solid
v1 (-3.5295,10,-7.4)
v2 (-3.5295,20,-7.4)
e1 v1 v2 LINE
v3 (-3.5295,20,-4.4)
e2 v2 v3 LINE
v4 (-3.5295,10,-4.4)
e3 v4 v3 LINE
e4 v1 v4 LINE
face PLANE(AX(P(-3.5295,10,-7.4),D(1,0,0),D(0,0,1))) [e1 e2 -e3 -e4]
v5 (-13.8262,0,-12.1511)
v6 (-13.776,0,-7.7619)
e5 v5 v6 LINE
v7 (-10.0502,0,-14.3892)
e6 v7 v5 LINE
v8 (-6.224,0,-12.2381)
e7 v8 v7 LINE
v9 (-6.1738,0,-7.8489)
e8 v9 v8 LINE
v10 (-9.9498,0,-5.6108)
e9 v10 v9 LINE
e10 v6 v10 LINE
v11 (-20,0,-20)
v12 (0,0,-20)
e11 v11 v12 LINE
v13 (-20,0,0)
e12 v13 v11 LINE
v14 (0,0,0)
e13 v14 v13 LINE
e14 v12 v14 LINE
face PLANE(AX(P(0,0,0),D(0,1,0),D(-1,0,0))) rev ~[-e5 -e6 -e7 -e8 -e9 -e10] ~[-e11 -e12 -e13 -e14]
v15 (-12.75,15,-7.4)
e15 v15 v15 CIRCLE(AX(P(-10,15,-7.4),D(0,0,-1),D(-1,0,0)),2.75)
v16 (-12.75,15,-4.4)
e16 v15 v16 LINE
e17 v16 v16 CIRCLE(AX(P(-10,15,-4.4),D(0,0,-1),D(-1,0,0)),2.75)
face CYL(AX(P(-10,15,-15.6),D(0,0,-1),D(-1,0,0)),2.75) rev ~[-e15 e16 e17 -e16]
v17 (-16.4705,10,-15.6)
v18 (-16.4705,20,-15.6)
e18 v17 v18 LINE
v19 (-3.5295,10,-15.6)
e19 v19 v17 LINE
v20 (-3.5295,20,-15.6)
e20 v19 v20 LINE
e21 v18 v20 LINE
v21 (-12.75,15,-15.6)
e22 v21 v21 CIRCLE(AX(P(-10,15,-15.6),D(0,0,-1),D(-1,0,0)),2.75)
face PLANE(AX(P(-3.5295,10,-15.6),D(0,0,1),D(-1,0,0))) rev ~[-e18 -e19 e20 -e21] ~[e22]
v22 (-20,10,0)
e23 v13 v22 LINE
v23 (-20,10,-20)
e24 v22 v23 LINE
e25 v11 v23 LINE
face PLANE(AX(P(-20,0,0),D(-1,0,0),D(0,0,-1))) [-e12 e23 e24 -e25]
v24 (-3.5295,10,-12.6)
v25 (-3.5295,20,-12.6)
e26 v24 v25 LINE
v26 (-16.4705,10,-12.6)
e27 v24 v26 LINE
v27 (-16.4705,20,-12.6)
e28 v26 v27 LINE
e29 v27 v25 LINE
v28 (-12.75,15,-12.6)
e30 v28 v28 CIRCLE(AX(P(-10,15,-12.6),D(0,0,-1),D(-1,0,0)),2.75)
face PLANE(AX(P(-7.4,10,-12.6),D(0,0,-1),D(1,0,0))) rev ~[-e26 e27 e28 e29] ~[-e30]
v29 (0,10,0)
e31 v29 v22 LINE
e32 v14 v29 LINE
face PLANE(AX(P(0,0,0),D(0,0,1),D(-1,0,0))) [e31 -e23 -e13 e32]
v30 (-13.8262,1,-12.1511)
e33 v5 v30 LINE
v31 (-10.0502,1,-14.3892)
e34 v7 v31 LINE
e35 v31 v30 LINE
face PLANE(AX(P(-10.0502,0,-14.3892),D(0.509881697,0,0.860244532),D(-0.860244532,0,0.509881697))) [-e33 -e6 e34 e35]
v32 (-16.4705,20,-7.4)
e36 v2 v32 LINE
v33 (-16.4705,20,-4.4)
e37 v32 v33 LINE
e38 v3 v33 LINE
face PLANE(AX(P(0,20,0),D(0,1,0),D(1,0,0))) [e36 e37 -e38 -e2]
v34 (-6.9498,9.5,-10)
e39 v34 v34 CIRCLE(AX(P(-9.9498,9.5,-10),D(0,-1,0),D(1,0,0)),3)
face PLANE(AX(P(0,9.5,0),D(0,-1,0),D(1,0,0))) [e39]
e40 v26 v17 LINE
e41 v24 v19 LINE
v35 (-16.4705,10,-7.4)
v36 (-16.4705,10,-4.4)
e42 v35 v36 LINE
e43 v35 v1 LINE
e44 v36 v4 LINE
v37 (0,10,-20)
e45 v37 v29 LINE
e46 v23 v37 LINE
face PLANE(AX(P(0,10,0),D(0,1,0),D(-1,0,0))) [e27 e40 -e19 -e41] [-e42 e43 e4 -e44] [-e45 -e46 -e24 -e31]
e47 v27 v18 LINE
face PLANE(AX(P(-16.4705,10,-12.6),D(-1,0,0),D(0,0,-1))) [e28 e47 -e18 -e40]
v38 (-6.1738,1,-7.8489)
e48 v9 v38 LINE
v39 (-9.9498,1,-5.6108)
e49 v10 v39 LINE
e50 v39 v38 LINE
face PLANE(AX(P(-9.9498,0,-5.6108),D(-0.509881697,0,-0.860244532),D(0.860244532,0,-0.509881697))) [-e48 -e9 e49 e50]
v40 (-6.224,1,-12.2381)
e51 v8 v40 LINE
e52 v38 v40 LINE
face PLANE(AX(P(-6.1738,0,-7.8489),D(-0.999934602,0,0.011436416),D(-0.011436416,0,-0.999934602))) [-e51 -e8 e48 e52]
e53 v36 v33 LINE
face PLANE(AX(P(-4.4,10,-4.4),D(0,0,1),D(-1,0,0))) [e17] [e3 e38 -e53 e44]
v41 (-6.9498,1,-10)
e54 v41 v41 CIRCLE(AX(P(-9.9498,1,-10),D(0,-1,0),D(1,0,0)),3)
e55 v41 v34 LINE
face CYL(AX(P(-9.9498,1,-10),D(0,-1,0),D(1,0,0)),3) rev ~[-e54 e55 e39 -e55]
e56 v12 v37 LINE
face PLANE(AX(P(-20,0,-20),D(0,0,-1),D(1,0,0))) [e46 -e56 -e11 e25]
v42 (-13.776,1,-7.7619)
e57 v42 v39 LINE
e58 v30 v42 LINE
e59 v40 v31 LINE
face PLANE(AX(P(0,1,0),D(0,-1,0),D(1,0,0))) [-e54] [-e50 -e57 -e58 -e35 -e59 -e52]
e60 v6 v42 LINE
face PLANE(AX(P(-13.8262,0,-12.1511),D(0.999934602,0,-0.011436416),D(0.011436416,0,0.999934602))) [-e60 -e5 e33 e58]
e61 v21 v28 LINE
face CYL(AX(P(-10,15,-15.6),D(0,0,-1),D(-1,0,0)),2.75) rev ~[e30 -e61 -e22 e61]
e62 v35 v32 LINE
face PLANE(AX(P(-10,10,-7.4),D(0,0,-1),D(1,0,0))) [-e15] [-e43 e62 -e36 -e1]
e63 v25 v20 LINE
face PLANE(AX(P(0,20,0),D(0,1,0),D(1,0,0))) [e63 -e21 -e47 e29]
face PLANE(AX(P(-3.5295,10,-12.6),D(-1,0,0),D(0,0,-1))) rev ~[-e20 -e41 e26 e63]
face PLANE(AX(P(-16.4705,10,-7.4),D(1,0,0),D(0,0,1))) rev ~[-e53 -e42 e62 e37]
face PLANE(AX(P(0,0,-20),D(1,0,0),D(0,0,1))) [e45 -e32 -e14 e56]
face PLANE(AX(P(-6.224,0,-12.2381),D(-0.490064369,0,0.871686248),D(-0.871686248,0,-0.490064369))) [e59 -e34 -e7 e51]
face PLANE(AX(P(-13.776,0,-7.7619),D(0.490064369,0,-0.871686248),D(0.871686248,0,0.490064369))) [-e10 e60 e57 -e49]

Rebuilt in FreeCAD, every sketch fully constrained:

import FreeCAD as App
import Part
import Sketcher
Q = App.Units.Quantity


def add_polygon(sketch, points):
    """Adds a closed chain of lines whose ends are joined by coincident constraints."""
    first, n = sketch.GeometryCount, len(points)
    for a, b in zip(points, points[1:] + points[:1]):
        sketch.addGeometry(Part.LineSegment(App.Vector(*a, 0), App.Vector(*b, 0)), False)
    for i in range(n):
        sketch.addConstraint(Sketcher.Constraint("Coincident", first + i, 2, first + (i + 1) % n, 1))

doc = App.newDocument("Part")
params = doc.addObject("Spreadsheet::Sheet", "Params")
for row, (alias, value) in enumerate([
    ("sketch1_width", "20 mm"),
    ("pad1_length", "10 mm"),
    ("pocket1_length", "1 mm"),
    ("sketch3_diameter", "6 mm"),
    ("pocket2_length", "8.5 mm"),
    ("sketch4_height", "3 mm"),
    ("pad2_length", "10 mm"),
    ("sketch5_diameter", "5.5 mm"),
    ("pocket3_length", "66.5 mm"),
], start=1):
    params.set(f"A{row}", alias)
    params.set(f"B{row}", "=" + value)
    params.setAlias(f"B{row}", alias)

body = doc.addObject("PartDesign::Body", "Body")

# Sketch on XZ plane
sketch1 = body.newObject("Sketcher::SketchObject", "Sketch")
sketch1.AttachmentSupport = (doc.getObject("XZ_Plane"), [""])
sketch1.MapMode = "FlatFace"
add_polygon(sketch1, [(-20, 0), (0, 0), (0, -20), (-20, -20)])  # lines 0-3
sketch1.addConstraint([
    Sketcher.Constraint("Horizontal", 0),
    Sketcher.Constraint("Vertical", 1),
    Sketcher.Constraint("Horizontal", 2),
    Sketcher.Constraint("Vertical", 3),
    Sketcher.Constraint("Coincident", 0, 2, -1, 1),
    Sketcher.Constraint("Equal", 2, 1),
    Sketcher.Constraint("DistanceX", 0, 1, 0, 2, Q("20 mm")),
])
sketch1.setExpression("Constraints[10]", "Params.sketch1_width")
pad1 = body.newObject("PartDesign::Pad", "Pad")
pad1.Profile = sketch1
pad1.setExpression("Length", "Params.pad1_length")
pad1.Reversed = True

# Sketch on XZ plane
sketch2 = body.newObject("Sketcher::SketchObject", "Sketch001")
sketch2.AttachmentSupport = (doc.getObject("XZ_Plane"), [""])
sketch2.MapMode = "FlatFace"
add_polygon(sketch2, [(-13.776, -7.7619), (-13.8262, -12.1511), (-10.0502, -14.3892), (-6.224, -12.2381), (-6.1738, -7.8489), (-9.9498, -5.6108)])  # lines 0-5
sketch2.addConstraint([
    Sketcher.Constraint("Parallel", 0, 3),
    Sketcher.Constraint("Parallel", 1, 4),
    Sketcher.Constraint("Parallel", 2, 5),
    Sketcher.Constraint("Equal", 0, 1),
    Sketcher.Constraint("Equal", 1, 2),
    Sketcher.Constraint("Equal", 2, 3),
    Sketcher.Constraint("DistanceY", 0, 2, -1, 1, Q("12.151 mm")),
    Sketcher.Constraint("DistanceX", 2, 2, -1, 1, Q("6.224 mm")),
    Sketcher.Constraint("DistanceY", 2, 2, -1, 1, Q("12.238 mm")),
    Sketcher.Constraint("DistanceY", 3, 2, -1, 1, Q("7.849 mm")),
    Sketcher.Constraint("DistanceX", 5, 2, -1, 1, Q("13.776 mm")),
    Sketcher.Constraint("DistanceX", 0, 2, 1, 2, Q("3.776 mm")),
])
pocket1 = body.newObject("PartDesign::Pocket", "Pocket")
pocket1.Profile = sketch2
pocket1.setExpression("Length", "Params.pocket1_length")

# Sketch on XZ plane
sketch3 = body.newObject("Sketcher::SketchObject", "Sketch002")
sketch3.AttachmentSupport = (doc.getObject("XZ_Plane"), [""])
sketch3.MapMode = "FlatFace"
sketch3.AttachmentOffset = App.Placement(App.Vector(0, 0, -1), App.Rotation())
sketch3.addGeometry(Part.Circle(App.Vector(-9.9498, -10, 0), App.Vector(0, 0, 1), 3), False)
sketch3.addConstraint([
    Sketcher.Constraint("Diameter", 0, Q("6 mm")),
    Sketcher.Constraint("DistanceY", 0, 3, -1, 1, Q("10 mm")),
    Sketcher.Constraint("DistanceX", 0, 3, -1, 1, Q("9.9498 mm")),
])
sketch3.setExpression("Constraints[0]", "Params.sketch3_diameter")
pocket2 = body.newObject("PartDesign::Pocket", "Pocket001")
pocket2.Profile = sketch3
pocket2.setExpression("Length", "Params.pocket2_length")

# Sketch on XZ plane
sketch4 = body.newObject("Sketcher::SketchObject", "Sketch003")
sketch4.AttachmentSupport = (doc.getObject("XZ_Plane"), [""])
sketch4.MapMode = "FlatFace"
sketch4.AttachmentOffset = App.Placement(App.Vector(0, 0, -10), App.Rotation())
add_polygon(sketch4, [(-3.5295, -4.4), (-3.5295, -7.4), (-16.4705, -7.4), (-16.4705, -4.4)])  # lines 0-3
add_polygon(sketch4, [(-3.5295, -15.6), (-16.4705, -15.6), (-16.4705, -12.6), (-3.5295, -12.6)])  # lines 4-7
sketch4.addConstraint([
    Sketcher.Constraint("Vertical", 0),
    Sketcher.Constraint("Horizontal", 1),
    Sketcher.Constraint("Vertical", 2),
    Sketcher.Constraint("Horizontal", 3),
    Sketcher.Constraint("Horizontal", 4),
    Sketcher.Constraint("Vertical", 5),
    Sketcher.Constraint("Horizontal", 6),
    Sketcher.Constraint("Vertical", 7),
    Sketcher.Constraint("Vertical", 2, 2, 4, 2),
    Sketcher.Constraint("Vertical", 3, 2, 6, 2),
    Sketcher.Constraint("Equal", 2, 5),
    Sketcher.Constraint("DistanceY", 0, 2, 0, 1, Q("3 mm")),
    Sketcher.Constraint("DistanceY", 5, 2, 1, 2, Q("5.2 mm")),
    Sketcher.Constraint("DistanceY", 0, 2, -1, 1, Q("7.4 mm")),
    Sketcher.Constraint("DistanceX", 1, 2, 1, 1, Q("12.941 mm")),
    Sketcher.Constraint("DistanceX", 0, 2, -1, 1, Q("3.5295 mm")),
])
sketch4.setExpression("Constraints[19]", "Params.sketch4_height")
pad2 = body.newObject("PartDesign::Pad", "Pad001")
pad2.Profile = sketch4
pad2.setExpression("Length", "Params.pad2_length")
pad2.Reversed = True

# Sketch on XY plane
sketch5 = body.newObject("Sketcher::SketchObject", "Sketch004")
sketch5.AttachmentSupport = (doc.getObject("XY_Plane"), [""])
sketch5.MapMode = "FlatFace"
sketch5.AttachmentOffset = App.Placement(App.Vector(0, 0, -15.6), App.Rotation())
sketch5.addGeometry(Part.Circle(App.Vector(-10, 15, 0), App.Vector(0, 0, 1), 2.75), False)
sketch5.addConstraint([
    Sketcher.Constraint("Diameter", 0, Q("5.5 mm")),
    Sketcher.Constraint("DistanceX", 0, 3, -1, 1, Q("10 mm")),
    Sketcher.Constraint("DistanceY", -1, 1, 0, 3, Q("15 mm")),
])
sketch5.setExpression("Constraints[0]", "Params.sketch5_diameter")
pocket3 = body.newObject("PartDesign::Pocket", "Pocket002")
pocket3.Profile = sketch5
pocket3.setExpression("Length", "Params.pocket3_length")
pocket3.Reversed = True

doc.recompute()
